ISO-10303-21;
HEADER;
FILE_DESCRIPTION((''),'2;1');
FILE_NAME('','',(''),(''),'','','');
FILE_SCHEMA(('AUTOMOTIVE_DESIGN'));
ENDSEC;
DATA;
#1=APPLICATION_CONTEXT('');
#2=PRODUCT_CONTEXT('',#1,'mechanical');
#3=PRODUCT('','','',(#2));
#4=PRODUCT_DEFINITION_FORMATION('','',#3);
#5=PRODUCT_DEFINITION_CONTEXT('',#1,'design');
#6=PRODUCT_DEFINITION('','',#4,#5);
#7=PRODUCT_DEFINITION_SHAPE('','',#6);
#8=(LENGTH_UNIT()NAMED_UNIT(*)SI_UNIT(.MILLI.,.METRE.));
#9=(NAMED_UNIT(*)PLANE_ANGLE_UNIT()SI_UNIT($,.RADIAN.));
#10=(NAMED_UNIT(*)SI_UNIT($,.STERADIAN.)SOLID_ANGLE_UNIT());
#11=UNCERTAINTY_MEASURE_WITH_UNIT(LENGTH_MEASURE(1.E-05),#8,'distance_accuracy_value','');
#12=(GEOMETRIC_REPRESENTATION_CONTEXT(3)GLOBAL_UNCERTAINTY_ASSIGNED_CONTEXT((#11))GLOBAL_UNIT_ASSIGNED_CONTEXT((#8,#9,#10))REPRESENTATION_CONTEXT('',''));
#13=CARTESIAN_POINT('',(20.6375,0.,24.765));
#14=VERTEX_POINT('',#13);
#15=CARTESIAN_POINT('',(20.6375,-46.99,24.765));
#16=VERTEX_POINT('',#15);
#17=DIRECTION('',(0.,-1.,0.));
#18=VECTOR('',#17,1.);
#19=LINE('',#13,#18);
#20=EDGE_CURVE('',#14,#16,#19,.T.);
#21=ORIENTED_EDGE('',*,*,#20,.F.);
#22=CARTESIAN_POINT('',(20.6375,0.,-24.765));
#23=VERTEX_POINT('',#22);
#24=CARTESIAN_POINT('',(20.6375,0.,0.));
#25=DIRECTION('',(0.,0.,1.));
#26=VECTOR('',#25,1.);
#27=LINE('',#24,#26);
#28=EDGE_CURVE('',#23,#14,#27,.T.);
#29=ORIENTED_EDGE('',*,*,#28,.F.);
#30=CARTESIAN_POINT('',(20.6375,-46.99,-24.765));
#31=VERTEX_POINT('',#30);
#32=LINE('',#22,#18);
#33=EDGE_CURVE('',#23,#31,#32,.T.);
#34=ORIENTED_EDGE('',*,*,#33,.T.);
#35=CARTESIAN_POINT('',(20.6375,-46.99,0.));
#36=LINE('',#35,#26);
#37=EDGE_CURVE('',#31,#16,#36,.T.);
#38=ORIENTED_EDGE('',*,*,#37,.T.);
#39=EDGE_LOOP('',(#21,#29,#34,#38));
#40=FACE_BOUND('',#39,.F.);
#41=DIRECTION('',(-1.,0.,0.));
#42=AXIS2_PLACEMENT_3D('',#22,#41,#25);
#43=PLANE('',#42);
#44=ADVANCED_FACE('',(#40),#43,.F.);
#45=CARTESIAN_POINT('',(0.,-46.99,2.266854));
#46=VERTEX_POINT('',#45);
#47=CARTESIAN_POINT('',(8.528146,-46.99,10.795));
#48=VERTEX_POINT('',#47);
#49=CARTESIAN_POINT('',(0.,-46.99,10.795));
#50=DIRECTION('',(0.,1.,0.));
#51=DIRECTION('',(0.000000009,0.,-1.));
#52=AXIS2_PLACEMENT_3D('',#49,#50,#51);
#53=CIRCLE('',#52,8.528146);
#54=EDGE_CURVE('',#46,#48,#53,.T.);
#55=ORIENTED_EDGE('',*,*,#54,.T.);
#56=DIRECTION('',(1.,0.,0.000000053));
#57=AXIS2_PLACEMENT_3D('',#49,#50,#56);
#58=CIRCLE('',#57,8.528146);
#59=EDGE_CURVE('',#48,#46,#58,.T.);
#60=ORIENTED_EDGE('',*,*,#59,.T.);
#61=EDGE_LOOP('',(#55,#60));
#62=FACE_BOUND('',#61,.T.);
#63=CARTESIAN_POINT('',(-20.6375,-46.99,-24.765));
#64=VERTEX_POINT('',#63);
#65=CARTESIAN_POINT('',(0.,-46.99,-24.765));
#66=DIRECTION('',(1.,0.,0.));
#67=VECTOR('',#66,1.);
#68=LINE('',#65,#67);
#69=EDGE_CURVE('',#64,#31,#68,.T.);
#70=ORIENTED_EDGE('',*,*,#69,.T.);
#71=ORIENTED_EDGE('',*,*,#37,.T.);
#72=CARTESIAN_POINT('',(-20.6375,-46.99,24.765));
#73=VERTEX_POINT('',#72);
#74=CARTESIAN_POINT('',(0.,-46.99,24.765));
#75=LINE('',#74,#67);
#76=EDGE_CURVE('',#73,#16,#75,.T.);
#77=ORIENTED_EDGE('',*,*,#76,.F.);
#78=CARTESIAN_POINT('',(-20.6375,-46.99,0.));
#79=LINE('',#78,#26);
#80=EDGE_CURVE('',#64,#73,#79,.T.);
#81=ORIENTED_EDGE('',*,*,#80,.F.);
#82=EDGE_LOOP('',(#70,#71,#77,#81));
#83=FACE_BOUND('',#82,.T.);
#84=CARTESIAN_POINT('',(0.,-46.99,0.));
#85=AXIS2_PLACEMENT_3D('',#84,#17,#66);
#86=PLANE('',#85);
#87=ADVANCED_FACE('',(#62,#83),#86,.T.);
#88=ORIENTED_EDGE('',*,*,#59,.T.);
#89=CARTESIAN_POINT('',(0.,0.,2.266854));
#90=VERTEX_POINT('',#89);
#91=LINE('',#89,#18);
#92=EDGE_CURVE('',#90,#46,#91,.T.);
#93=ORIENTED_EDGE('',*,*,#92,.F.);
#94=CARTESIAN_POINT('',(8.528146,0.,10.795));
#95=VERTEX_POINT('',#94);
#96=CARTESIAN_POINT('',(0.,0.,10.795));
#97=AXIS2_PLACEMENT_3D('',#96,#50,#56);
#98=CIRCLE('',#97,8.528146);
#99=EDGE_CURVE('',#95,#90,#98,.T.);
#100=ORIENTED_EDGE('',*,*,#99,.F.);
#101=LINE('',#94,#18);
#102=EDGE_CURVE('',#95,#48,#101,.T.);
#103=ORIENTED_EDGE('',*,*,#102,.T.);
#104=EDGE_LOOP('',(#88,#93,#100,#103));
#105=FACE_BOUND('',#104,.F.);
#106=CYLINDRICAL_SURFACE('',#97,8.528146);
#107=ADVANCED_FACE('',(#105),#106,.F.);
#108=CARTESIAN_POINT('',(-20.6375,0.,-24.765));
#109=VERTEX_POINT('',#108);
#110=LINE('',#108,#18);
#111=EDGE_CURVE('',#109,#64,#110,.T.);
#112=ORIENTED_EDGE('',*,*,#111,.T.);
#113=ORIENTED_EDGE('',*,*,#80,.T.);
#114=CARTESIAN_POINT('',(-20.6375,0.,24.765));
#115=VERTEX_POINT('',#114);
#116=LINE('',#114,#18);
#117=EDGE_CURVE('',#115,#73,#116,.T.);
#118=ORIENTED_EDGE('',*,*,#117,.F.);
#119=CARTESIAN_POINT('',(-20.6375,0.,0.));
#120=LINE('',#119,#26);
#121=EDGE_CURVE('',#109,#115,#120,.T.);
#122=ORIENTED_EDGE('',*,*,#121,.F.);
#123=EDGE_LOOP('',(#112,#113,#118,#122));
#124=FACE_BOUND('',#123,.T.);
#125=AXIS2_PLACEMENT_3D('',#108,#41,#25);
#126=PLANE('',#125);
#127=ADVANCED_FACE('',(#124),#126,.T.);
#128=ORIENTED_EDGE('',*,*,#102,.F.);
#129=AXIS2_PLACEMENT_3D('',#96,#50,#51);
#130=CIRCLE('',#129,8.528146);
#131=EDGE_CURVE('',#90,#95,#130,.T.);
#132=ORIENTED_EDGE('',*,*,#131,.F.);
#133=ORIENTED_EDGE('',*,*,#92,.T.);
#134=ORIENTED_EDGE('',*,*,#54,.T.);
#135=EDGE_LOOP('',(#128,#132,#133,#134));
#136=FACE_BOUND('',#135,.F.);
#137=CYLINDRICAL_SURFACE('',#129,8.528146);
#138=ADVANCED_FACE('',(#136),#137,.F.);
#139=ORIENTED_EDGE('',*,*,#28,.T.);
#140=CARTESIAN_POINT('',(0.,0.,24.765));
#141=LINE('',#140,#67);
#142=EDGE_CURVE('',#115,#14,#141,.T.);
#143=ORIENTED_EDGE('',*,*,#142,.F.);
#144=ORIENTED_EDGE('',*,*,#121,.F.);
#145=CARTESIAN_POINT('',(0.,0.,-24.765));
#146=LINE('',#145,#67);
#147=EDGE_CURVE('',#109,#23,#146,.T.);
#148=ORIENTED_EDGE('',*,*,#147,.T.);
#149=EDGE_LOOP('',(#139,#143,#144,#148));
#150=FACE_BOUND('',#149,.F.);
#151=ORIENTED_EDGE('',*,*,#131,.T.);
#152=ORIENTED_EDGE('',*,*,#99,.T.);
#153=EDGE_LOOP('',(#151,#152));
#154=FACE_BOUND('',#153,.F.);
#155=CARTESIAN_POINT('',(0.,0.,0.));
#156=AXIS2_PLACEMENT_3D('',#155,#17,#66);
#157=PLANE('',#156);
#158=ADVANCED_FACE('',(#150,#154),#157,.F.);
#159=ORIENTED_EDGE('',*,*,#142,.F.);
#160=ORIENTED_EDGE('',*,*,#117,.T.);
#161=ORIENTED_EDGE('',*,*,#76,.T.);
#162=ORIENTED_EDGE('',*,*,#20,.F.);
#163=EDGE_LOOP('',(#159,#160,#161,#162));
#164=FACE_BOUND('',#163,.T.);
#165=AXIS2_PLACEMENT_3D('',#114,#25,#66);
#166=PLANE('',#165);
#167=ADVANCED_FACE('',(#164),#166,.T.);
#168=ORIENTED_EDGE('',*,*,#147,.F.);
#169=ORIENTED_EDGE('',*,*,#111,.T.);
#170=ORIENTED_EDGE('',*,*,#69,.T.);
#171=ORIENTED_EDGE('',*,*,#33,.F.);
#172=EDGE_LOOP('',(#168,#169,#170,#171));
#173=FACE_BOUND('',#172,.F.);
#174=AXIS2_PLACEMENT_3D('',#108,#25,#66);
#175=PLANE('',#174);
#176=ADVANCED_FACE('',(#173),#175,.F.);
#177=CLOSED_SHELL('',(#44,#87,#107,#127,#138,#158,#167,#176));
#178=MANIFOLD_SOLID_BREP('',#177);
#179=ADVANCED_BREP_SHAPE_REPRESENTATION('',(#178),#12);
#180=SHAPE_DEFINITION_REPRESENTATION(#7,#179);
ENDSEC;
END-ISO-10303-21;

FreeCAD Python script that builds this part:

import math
import FreeCAD as App
import Part
import Sketcher
from FreeCAD import Vector
Q = App.Units.Quantity

doc = App.newDocument("Part")
params = doc.addObject("Spreadsheet::Sheet", "Params")
for row, (alias, value) in enumerate([
    ("sketch1_height", "1.95 in"),
    ("sketch1_width", "1.625 in"),
    ("pad1_length", "1.85 in"),
], start=1):
    params.set(f"A{row}", alias)
    params.set(f"B{row}", "=" + value)
    params.setAlias(f"B{row}", alias)

body = doc.addObject("PartDesign::Body", "Body")

sketch1 = body.newObject("Sketcher::SketchObject", "Sketch")
sketch1.AttachmentSupport = (doc.getObject("XZ_Plane"), [""])
sketch1.MapMode = "FlatFace"
sketch1.addGeometry(Part.LineSegment(Vector(-20.6375, 24.765, 0), Vector(-20.6375, -24.765, 0)), False)
sketch1.addGeometry(Part.LineSegment(Vector(-20.6375, -24.765, 0), Vector(20.6375, -24.765, 0)), False)
sketch1.addGeometry(Part.LineSegment(Vector(20.6375, -24.765, 0), Vector(20.6375, 24.765, 0)), False)
sketch1.addGeometry(Part.LineSegment(Vector(20.6375, 24.765, 0), Vector(-20.6375, 24.765, 0)), False)
sketch1.addGeometry(Part.ArcOfCircle(Part.Circle(Vector(0, 10.795, 0), Vector(0, 0, 1), 8.528146), math.radians(-90.000003), math.radians(0.000003)), False)
sketch1.addGeometry(Part.ArcOfCircle(Part.Circle(Vector(0, 10.795, 0), Vector(0, 0, 1), 8.528146), math.radians(-0.000001), math.radians(270.000001)), False)
sketch1.addConstraint(Sketcher.Constraint("Coincident", 0, 2, 1, 1))
sketch1.addConstraint(Sketcher.Constraint("Coincident", 1, 2, 2, 1))
sketch1.addConstraint(Sketcher.Constraint("Coincident", 2, 2, 3, 1))
sketch1.addConstraint(Sketcher.Constraint("Coincident", 3, 2, 0, 1))
sketch1.addConstraint(Sketcher.Constraint("Tangent", 4, 1, 5, 2))
sketch1.addConstraint(Sketcher.Constraint("Coincident", 5, 1, 4, 2))
sketch1.addConstraint(Sketcher.Constraint("Vertical", 0))
sketch1.addConstraint(Sketcher.Constraint("Horizontal", 1))
sketch1.addConstraint(Sketcher.Constraint("Vertical", 2))
sketch1.addConstraint(Sketcher.Constraint("Horizontal", 3))
sketch1.addConstraint(Sketcher.Constraint("Symmetric", 0, 2, 2, 2, -1, 1))
sketch1.addConstraint(Sketcher.Constraint("PointOnObject", 4, 3, -2))
sketch1.addConstraint(Sketcher.Constraint("PointOnObject", 4, 1, -2))
sketch1.addConstraint(Sketcher.Constraint("Horizontal", 4, 3, 5, 1))
sketch1.addConstraint(Sketcher.Constraint("DistanceY", 0, 2, 0, 1, Q("1.95 in")))
sketch1.addConstraint(Sketcher.Constraint("DistanceY", 0, 2, 4, 3, Q("1.4 in")))
sketch1.addConstraint(Sketcher.Constraint("DistanceX", 1, 1, 1, 2, Q("1.625 in")))
sketch1.addConstraint(Sketcher.Constraint("Radius", 4, 8.528146))
sketch1.setExpression("Constraints[14]", "Params.sketch1_height")
sketch1.setExpression("Constraints[16]", "Params.sketch1_width")
pad1 = body.newObject("PartDesign::Pad", "Pad")
pad1.Profile = sketch1
pad1.setExpression("Length", "Params.pad1_length")

doc.recompute()
